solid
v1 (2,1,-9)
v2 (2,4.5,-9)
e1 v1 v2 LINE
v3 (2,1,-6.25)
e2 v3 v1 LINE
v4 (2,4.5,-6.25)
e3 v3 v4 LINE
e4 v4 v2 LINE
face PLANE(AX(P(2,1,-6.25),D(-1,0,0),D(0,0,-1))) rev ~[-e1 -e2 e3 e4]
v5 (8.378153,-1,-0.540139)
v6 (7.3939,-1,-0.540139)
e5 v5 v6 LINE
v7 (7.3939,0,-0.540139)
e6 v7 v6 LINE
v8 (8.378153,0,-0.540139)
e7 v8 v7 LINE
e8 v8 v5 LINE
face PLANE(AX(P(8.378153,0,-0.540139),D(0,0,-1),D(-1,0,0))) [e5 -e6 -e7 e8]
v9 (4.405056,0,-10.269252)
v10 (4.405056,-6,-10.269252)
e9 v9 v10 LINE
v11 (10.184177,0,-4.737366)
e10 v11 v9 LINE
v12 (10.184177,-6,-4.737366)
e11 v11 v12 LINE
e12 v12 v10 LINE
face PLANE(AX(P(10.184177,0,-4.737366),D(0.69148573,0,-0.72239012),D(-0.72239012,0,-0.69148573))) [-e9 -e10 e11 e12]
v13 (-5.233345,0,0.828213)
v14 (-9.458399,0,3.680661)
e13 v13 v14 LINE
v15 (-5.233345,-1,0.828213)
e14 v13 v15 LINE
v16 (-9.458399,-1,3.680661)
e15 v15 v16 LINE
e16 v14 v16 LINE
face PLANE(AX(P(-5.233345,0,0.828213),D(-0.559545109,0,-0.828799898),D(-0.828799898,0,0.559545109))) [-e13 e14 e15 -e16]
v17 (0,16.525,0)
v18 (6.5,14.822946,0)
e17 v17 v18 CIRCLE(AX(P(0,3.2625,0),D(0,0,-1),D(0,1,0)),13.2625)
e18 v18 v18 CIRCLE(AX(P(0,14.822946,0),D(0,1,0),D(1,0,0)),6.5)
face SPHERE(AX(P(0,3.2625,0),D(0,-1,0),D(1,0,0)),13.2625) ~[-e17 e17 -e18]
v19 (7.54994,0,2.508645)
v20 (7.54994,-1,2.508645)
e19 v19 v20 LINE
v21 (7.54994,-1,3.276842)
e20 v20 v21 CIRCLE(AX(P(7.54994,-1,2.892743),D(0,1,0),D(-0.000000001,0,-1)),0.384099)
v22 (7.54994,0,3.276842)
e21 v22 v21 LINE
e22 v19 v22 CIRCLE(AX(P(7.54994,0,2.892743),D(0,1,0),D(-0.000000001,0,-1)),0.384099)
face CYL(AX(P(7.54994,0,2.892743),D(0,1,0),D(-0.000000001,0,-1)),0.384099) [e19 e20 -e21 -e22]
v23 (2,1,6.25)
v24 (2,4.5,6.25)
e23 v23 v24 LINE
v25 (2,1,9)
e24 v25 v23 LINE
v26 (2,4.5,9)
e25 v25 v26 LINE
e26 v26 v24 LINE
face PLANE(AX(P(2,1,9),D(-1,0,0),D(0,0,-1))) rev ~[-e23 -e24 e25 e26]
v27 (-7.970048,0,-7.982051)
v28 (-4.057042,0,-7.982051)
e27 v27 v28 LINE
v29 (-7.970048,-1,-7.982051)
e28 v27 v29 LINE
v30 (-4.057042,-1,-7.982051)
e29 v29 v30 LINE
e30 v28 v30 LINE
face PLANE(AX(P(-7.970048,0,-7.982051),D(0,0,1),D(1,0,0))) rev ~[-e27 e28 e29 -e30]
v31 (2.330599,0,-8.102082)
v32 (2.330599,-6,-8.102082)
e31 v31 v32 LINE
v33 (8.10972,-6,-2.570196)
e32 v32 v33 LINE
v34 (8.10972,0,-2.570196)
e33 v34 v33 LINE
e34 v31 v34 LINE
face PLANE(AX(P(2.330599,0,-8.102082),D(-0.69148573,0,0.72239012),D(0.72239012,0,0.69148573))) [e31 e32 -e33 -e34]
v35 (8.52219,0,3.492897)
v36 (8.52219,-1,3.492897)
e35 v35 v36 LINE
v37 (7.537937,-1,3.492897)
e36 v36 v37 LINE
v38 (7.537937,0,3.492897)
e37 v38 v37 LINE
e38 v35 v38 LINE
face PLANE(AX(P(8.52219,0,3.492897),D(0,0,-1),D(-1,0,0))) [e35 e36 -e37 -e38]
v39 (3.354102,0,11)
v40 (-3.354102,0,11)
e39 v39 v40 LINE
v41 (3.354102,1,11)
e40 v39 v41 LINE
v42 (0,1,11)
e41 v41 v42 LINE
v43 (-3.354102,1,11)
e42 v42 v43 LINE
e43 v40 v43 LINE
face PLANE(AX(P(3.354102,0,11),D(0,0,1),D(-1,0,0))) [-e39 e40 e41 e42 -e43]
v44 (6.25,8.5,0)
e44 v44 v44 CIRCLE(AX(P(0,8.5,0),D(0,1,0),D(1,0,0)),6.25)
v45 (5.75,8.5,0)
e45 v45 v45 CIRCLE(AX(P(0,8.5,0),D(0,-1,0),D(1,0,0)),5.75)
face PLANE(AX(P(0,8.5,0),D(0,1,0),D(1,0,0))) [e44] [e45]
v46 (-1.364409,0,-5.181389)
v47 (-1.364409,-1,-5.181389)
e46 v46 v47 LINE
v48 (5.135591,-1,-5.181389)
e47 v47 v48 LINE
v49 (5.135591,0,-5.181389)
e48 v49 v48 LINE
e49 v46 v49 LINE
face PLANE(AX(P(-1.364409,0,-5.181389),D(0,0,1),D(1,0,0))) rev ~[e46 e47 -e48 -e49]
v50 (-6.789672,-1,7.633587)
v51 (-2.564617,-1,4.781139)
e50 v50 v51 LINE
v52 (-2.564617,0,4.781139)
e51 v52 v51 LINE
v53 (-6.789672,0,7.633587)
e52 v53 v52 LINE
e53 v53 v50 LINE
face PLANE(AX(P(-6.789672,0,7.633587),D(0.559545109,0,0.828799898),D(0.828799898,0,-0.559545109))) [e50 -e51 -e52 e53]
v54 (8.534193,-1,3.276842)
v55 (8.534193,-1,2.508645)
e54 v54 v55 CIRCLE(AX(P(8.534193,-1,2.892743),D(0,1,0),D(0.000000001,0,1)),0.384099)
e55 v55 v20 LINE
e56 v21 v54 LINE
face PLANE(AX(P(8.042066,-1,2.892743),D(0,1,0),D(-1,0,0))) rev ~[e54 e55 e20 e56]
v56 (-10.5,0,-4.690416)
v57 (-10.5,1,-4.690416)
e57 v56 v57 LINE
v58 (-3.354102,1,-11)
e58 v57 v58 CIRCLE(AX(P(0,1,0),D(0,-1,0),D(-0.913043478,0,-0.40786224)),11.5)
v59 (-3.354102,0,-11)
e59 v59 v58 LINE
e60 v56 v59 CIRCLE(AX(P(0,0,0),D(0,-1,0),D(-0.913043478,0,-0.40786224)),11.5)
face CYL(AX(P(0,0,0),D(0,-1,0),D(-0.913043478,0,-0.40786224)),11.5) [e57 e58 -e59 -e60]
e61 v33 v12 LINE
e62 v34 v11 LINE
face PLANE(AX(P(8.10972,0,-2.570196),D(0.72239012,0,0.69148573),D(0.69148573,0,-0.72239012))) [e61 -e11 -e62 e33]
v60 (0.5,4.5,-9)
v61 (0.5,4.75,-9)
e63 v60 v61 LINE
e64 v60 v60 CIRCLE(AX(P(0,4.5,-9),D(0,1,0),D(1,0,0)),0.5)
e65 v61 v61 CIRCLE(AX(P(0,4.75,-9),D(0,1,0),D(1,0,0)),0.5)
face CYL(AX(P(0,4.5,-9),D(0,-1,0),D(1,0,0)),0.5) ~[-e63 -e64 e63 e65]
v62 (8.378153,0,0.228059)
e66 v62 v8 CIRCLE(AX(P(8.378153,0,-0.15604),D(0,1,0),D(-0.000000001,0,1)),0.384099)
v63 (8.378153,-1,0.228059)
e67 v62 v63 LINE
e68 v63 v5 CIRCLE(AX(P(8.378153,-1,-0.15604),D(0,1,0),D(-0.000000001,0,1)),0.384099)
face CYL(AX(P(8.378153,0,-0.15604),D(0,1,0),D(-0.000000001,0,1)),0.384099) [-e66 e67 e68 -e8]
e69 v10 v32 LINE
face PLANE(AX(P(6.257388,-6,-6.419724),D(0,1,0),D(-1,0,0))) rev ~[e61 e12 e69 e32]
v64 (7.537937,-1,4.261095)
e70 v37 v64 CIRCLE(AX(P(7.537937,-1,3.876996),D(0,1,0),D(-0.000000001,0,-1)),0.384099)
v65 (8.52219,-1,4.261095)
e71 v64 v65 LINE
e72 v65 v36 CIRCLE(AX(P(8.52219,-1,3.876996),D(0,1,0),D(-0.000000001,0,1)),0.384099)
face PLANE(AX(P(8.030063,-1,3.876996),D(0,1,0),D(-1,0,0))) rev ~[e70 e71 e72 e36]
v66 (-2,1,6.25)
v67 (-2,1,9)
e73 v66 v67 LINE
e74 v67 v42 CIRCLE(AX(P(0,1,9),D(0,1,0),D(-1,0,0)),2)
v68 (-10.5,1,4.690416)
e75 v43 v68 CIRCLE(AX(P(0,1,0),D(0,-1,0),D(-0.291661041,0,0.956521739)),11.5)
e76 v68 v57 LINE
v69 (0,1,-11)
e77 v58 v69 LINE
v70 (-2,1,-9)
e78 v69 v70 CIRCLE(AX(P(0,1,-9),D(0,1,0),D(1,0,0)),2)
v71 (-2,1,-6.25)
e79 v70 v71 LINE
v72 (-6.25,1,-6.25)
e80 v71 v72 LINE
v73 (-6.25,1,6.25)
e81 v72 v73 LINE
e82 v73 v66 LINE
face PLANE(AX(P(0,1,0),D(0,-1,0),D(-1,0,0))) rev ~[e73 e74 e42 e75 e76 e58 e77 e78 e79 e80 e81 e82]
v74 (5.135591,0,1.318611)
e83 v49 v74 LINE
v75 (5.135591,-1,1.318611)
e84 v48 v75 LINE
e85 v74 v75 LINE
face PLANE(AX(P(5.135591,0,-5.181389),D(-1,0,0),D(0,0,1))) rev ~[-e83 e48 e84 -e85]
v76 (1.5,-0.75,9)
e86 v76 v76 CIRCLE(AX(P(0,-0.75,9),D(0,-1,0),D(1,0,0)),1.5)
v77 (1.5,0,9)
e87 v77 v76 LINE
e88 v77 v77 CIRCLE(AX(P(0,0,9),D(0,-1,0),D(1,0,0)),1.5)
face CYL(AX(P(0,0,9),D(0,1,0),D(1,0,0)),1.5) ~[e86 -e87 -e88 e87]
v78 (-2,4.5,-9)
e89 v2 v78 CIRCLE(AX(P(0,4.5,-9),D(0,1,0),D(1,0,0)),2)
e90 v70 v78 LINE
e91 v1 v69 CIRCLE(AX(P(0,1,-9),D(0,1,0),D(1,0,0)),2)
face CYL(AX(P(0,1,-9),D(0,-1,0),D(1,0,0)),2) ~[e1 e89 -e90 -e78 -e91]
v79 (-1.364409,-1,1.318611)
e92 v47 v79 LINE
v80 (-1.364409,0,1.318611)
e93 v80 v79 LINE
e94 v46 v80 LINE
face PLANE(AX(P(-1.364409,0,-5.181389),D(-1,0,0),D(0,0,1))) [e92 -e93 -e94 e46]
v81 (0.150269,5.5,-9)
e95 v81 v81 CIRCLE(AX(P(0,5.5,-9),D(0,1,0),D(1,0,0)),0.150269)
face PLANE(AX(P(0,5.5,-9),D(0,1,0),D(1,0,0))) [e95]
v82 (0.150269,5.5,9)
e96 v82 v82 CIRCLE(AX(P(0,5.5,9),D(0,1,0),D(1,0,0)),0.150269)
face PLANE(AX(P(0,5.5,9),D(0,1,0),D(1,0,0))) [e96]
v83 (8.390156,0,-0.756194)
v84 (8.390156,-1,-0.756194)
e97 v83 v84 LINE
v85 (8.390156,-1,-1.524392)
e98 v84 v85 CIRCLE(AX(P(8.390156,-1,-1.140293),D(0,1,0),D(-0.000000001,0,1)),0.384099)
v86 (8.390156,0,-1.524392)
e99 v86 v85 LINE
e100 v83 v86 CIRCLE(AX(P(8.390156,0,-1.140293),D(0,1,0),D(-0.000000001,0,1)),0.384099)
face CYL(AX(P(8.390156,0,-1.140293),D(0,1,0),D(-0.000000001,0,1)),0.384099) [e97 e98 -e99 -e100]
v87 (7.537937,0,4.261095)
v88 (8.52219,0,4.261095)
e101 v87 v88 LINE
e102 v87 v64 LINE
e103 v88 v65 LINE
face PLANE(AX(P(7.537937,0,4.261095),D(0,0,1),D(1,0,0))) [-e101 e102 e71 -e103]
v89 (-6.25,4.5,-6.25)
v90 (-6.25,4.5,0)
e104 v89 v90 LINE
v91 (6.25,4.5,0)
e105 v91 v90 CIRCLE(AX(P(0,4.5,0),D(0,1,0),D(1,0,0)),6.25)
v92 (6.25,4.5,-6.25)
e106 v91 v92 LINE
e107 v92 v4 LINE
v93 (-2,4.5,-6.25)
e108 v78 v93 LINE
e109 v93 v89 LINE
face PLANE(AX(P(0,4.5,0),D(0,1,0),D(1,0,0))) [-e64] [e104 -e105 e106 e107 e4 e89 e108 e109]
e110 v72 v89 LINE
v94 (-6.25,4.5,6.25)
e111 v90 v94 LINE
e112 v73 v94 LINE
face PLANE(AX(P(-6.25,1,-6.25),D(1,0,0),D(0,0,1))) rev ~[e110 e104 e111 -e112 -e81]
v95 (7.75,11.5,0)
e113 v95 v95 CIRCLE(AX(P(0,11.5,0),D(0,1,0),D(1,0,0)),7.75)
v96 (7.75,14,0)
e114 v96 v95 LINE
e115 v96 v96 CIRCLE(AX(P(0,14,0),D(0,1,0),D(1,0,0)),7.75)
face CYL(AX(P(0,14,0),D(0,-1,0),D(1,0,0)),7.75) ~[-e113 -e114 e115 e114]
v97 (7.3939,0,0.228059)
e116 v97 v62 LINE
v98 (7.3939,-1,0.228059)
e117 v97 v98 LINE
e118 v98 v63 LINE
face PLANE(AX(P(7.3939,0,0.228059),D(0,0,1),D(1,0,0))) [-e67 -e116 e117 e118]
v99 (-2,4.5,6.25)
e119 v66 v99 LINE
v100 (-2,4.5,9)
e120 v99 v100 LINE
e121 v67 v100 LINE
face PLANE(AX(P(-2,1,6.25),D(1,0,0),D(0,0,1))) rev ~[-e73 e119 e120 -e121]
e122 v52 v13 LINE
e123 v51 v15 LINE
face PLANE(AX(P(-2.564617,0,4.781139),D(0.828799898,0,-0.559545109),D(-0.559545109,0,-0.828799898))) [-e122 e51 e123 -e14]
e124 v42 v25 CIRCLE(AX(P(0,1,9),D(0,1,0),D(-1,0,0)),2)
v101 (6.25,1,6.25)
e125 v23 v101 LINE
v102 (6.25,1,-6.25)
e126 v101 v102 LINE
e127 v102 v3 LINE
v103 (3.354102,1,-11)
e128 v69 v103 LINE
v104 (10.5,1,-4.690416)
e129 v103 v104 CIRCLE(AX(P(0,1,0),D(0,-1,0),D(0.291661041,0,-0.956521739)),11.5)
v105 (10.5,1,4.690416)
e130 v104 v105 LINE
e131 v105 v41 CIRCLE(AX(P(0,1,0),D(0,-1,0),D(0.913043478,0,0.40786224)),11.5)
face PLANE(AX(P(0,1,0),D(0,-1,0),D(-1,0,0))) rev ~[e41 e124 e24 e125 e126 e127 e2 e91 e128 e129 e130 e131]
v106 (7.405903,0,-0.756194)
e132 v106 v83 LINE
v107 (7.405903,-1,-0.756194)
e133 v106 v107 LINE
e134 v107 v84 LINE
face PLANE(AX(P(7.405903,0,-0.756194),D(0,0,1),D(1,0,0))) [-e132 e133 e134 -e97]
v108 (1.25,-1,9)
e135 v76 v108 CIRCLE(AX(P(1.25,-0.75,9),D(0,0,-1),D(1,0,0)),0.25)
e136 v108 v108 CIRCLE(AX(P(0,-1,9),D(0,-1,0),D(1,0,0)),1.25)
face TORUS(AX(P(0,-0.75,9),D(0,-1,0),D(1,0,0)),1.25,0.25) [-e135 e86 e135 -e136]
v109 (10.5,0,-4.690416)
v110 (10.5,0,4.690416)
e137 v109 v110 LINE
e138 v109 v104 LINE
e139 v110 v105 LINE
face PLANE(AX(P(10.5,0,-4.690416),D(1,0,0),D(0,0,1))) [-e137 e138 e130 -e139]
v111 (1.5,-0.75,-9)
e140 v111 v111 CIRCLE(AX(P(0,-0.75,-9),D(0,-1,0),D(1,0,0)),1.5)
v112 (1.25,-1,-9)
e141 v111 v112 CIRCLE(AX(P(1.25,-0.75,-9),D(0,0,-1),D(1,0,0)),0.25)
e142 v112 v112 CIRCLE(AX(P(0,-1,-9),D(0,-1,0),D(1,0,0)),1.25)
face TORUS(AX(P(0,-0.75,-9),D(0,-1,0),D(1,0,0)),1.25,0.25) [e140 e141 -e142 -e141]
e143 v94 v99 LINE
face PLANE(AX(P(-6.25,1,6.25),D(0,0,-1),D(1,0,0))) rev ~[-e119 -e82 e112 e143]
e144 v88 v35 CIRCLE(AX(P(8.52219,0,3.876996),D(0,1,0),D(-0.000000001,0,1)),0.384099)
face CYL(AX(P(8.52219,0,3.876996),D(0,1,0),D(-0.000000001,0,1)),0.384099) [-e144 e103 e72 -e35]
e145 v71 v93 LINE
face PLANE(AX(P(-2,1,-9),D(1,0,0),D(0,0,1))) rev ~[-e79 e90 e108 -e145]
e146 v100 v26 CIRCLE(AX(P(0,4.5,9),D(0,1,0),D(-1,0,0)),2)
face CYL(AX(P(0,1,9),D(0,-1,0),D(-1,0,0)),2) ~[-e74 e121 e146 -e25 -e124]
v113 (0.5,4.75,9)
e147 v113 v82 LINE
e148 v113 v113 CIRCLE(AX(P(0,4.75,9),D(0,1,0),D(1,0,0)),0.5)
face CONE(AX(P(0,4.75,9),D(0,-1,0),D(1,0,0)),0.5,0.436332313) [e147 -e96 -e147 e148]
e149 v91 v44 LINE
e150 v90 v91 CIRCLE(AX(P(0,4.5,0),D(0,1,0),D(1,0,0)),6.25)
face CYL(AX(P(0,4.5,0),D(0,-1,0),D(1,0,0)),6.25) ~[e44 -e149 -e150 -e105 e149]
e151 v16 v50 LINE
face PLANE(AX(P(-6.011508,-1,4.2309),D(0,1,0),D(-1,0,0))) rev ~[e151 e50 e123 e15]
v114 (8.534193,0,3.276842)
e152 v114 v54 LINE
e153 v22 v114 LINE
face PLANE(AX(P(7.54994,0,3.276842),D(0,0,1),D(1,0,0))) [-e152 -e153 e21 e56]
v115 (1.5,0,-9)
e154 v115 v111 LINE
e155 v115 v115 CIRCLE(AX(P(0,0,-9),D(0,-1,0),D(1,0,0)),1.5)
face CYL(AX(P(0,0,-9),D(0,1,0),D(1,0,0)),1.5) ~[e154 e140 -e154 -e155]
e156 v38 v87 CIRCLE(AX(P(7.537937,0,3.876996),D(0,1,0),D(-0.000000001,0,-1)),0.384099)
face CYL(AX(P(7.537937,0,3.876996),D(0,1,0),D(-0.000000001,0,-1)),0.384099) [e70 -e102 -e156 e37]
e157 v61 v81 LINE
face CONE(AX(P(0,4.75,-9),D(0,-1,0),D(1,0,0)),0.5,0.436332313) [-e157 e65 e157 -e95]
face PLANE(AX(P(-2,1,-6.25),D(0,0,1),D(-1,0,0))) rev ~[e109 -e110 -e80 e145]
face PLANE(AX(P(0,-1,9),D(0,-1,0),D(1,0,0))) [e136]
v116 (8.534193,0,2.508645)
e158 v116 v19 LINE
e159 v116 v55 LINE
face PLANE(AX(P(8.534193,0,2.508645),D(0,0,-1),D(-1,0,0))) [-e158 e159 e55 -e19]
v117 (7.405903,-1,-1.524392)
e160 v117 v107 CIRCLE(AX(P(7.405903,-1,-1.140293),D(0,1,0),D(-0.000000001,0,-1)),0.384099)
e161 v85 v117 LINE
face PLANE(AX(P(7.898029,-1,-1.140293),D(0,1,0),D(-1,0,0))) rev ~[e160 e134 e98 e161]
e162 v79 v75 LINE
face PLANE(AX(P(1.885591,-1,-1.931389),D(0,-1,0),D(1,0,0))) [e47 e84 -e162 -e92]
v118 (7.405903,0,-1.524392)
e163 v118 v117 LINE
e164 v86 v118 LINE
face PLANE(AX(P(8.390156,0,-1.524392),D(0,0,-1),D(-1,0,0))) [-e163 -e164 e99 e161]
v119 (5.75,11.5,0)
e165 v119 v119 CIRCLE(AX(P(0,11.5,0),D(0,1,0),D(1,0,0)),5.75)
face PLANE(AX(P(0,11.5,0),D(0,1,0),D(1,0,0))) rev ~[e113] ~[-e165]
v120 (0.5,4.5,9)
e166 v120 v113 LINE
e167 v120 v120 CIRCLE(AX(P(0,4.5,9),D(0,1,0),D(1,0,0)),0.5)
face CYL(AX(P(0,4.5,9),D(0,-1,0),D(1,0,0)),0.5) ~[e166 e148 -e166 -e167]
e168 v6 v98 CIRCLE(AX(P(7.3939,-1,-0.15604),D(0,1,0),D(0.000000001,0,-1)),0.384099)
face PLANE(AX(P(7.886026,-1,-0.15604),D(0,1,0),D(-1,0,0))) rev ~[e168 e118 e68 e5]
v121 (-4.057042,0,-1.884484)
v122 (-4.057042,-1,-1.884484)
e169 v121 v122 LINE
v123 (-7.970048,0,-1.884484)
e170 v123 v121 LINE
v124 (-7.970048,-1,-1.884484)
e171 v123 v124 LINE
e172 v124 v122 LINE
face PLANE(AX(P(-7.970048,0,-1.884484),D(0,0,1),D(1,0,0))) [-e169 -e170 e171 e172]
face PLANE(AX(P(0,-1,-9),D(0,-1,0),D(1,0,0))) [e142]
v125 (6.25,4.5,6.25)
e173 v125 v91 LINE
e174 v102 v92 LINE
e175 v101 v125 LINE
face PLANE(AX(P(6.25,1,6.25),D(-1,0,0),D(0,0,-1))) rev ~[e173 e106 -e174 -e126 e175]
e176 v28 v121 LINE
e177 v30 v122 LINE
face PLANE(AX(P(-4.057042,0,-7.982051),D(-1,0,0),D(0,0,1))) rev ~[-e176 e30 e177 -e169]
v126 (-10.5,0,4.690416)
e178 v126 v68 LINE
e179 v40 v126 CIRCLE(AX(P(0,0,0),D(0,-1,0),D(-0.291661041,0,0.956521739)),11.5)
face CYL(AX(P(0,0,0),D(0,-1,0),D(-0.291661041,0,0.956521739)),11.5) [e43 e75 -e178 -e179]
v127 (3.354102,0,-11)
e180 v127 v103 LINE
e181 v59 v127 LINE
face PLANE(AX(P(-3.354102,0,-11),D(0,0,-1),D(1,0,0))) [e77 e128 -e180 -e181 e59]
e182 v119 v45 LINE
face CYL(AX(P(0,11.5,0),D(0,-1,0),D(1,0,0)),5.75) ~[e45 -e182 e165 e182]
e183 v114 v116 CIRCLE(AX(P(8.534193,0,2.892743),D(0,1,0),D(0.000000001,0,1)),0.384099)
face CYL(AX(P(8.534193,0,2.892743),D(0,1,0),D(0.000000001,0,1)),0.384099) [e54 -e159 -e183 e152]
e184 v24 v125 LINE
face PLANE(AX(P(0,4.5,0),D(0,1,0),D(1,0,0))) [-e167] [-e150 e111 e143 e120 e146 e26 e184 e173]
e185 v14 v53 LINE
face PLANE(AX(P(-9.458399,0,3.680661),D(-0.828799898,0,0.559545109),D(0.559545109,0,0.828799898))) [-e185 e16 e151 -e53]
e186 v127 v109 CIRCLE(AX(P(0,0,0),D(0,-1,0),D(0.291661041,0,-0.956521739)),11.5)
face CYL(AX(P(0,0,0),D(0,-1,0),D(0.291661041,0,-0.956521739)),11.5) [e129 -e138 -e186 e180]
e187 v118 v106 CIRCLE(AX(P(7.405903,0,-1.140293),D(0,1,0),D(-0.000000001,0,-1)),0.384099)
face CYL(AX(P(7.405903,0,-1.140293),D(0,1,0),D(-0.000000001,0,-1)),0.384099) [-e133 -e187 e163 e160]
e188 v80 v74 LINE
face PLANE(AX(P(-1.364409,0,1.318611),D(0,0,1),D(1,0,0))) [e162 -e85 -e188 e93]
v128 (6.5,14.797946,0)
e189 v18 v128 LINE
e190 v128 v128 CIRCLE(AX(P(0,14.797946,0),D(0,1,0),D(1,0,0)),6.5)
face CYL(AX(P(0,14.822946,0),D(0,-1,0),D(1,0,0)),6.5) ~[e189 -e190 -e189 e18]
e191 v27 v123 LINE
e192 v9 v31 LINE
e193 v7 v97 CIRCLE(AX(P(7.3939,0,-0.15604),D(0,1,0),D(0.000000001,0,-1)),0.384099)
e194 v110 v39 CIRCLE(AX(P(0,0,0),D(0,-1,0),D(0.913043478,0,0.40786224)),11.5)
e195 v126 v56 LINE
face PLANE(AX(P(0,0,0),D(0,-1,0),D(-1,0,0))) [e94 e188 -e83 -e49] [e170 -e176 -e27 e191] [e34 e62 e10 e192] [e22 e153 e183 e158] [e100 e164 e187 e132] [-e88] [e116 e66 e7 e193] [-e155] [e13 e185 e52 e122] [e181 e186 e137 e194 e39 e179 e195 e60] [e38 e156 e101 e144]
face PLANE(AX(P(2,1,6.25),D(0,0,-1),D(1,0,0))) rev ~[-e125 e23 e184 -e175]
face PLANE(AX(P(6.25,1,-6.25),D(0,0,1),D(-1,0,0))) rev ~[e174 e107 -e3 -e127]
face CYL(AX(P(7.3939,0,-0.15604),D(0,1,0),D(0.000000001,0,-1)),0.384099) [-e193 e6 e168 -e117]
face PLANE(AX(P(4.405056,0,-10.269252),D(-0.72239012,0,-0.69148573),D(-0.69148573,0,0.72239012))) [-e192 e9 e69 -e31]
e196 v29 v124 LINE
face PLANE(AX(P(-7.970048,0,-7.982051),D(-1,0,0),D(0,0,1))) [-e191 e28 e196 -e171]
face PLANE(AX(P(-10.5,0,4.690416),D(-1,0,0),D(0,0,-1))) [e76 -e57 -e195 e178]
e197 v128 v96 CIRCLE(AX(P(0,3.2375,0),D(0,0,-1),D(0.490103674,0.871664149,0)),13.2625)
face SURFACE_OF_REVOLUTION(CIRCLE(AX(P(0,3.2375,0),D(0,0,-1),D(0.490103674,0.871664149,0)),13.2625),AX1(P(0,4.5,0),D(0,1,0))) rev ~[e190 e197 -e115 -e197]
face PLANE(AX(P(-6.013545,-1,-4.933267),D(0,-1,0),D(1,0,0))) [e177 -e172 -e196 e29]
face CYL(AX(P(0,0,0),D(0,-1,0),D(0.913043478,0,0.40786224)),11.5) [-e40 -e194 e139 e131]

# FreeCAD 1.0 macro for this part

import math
import FreeCAD as App
import Part
import Sketcher


def edges_at(feature, points):
    """Names of the edges that pass closest to the given points."""
    edges = feature.Shape.Edges
    near = lambda p: min(range(len(edges)), key=lambda i: edges[i].distToShape(Part.Vertex(*p))[0])
    return sorted({f"Edge{near(p) + 1}" for p in points})

doc = App.newDocument("Part")
params = doc.addObject("Spreadsheet::Sheet", "Params")
for row, (alias, value) in enumerate([
    ("sketch1_radius", "11.5 mm"),
    ("pad1_length", "1 mm"),
    ("sketch2_length", "3 mm"),
    ("sketch2_length2", "8 mm"),
    ("pad2_length", "6 mm"),
    ("sketch3_diameter", "3 mm"),
    ("sketch3_width", "6.5 mm"),
    ("pad3_length", "1 mm"),
    ("fillet_radius", "0.25 mm"),
    ("sketch4_radius", "2 mm"),
    ("sketch4_height", "12.5 mm"),
    ("sketch4_width", "4.25 mm"),
    ("pad4_length", "3.5 mm"),
    ("sketch5_diameter", "12.5 mm"),
    ("pad5_length", "4 mm"),
    ("sketch6_diameter", "1 mm"),
    ("pad6_length", "1 mm"),
    ("chamfer_size", "0.75 mm"),
    ("chamfer_size2", "0.349731 mm"),
    ("chamfer2_size", "0.75 mm"),
    ("chamfer2_size2", "0.349731 mm"),
    ("sketch7_width", "2 mm"),
    ("sketch7_height", "7 mm"),
    ("sketch7_height2", "2.5 mm"),
    ("sketch7_width2", "5.75 mm"),
    ("revolution_angle", "360 deg"),
], start=1):
    params.set(f"A{row}", alias)
    params.set(f"B{row}", "=" + value)
    params.setAlias(f"B{row}", alias)

body = doc.addObject("PartDesign::Body", "Body")

sketch1 = body.newObject("Sketcher::SketchObject", "Sketch")
sketch1.AttachmentSupport = (doc.getObject("XZ_Plane"), [""])
sketch1.MapMode = "FlatFace"
sketch1.addGeometry(Part.LineSegment(App.Vector(3, -11, 0), App.Vector(-3, -11, 0)), False)
sketch1.addGeometry(Part.ArcOfCircle(Part.Circle(App.Vector(0, 0, 0), App.Vector(0, 0, 1), 12), math.radians(-156), math.radians(-107)), False)
sketch1.addGeometry(Part.LineSegment(App.Vector(-10, -5, 0), App.Vector(-10, 5, 0)), False)
sketch1.addGeometry(Part.ArcOfCircle(Part.Circle(App.Vector(0, 0, 0), App.Vector(0, 0, 1), 12), math.radians(107), math.radians(156)), False)
sketch1.addGeometry(Part.LineSegment(App.Vector(-3, 11, 0), App.Vector(3, 11, 0)), False)
sketch1.addGeometry(Part.ArcOfCircle(Part.Circle(App.Vector(0, 0, 0), App.Vector(0, 0, 1), 12), math.radians(24), math.radians(73)), False)
sketch1.addGeometry(Part.LineSegment(App.Vector(10, 5, 0), App.Vector(10, -5, 0)), False)
sketch1.addGeometry(Part.ArcOfCircle(Part.Circle(App.Vector(0, 0, 0), App.Vector(0, 0, 1), 12), math.radians(-73), math.radians(-24)), False)
sketch1.addConstraint(Sketcher.Constraint("Coincident", 0, 2, 1, 2))
sketch1.addConstraint(Sketcher.Constraint("Coincident", 1, 1, 2, 1))
sketch1.addConstraint(Sketcher.Constraint("Coincident", 2, 2, 3, 2))
sketch1.addConstraint(Sketcher.Constraint("Coincident", 3, 1, 4, 1))
sketch1.addConstraint(Sketcher.Constraint("Coincident", 4, 2, 5, 2))
sketch1.addConstraint(Sketcher.Constraint("Coincident", 5, 1, 6, 1))
sketch1.addConstraint(Sketcher.Constraint("Coincident", 6, 2, 7, 2))
sketch1.addConstraint(Sketcher.Constraint("Coincident", 7, 1, 0, 1))
sketch1.addConstraint(Sketcher.Constraint("Horizontal", 0))
sketch1.addConstraint(Sketcher.Constraint("Vertical", 2))
sketch1.addConstraint(Sketcher.Constraint("Horizontal", 4))
sketch1.addConstraint(Sketcher.Constraint("Vertical", 6))
sketch1.addConstraint(Sketcher.Constraint("Coincident", 1, 3, -1, 1))
sketch1.addConstraint(Sketcher.Constraint("Coincident", 3, 3, -1, 1))
sketch1.addConstraint(Sketcher.Constraint("Coincident", 5, 3, -1, 1))
sketch1.addConstraint(Sketcher.Constraint("Coincident", 7, 3, -1, 1))
sketch1.addConstraint(Sketcher.Constraint("Equal", 1, 3))
sketch1.addConstraint(Sketcher.Constraint("Equal", 3, 5))
sketch1.addConstraint(Sketcher.Constraint("Equal", 5, 7))
sketch1.addConstraint(Sketcher.Constraint("Horizontal", 2, 2, 5, 1))
sketch1.addConstraint(Sketcher.Constraint("Vertical", 0, 2, 3, 1))
sketch1.addConstraint(Sketcher.Constraint("Radius", 1, 11.5))
sketch1.addConstraint(Sketcher.Constraint("DistanceY", 0, 2, -1, 1, 11.0))
sketch1.addConstraint(Sketcher.Constraint("DistanceX", 1, 1, -1, 1, 10.5))
sketch1.setExpression("Constraints[21]", "Params.sketch1_radius")
pad1 = body.newObject("PartDesign::Pad", "Pad")
pad1.Profile = sketch1
pad1.setExpression("Length", "Params.pad1_length")
pad1.Reversed = True

sketch2 = body.newObject("Sketcher::SketchObject", "Sketch001")
sketch2.AttachmentSupport = (doc.getObject("XZ_Plane"), [""])
sketch2.MapMode = "FlatFace"
sketch2.addGeometry(Part.LineSegment(App.Vector(10.2, -4.7, 0), App.Vector(8.1, -2.6, 0)), False)
sketch2.addGeometry(Part.LineSegment(App.Vector(8.1, -2.6, 0), App.Vector(2.3, -8.1, 0)), False)
sketch2.addGeometry(Part.LineSegment(App.Vector(2.3, -8.1, 0), App.Vector(4.4, -10.3, 0)), False)
sketch2.addGeometry(Part.LineSegment(App.Vector(4.4, -10.3, 0), App.Vector(10.2, -4.7, 0)), False)
sketch2.addConstraint(Sketcher.Constraint("Coincident", 0, 2, 1, 1))
sketch2.addConstraint(Sketcher.Constraint("Coincident", 1, 2, 2, 1))
sketch2.addConstraint(Sketcher.Constraint("Coincident", 2, 2, 3, 1))
sketch2.addConstraint(Sketcher.Constraint("Coincident", 3, 2, 0, 1))
sketch2.addConstraint(Sketcher.Constraint("Perpendicular", 0, 1))
sketch2.addConstraint(Sketcher.Constraint("Perpendicular", 1, 2))
sketch2.addConstraint(Sketcher.Constraint("Perpendicular", 2, 3))
sketch2.addConstraint(Sketcher.Constraint("Distance", 0, 3.0))
sketch2.addConstraint(Sketcher.Constraint("Distance", 1, 8.0))
sketch2.addConstraint(Sketcher.Constraint("DistanceX", -1, 1, 1, 2, 2.330599))
sketch2.addConstraint(Sketcher.Constraint("DistanceX", -1, 1, 0, 2, 8.10972))
sketch2.addConstraint(Sketcher.Constraint("DistanceY", 1, 2, -1, 1, 8.102082))
sketch2.setExpression("Constraints[7]", "Params.sketch2_length")
sketch2.setExpression("Constraints[8]", "Params.sketch2_length2")
pad2 = body.newObject("PartDesign::Pad", "Pad001")
pad2.Profile = sketch2
pad2.setExpression("Length", "Params.pad2_length")

sketch3 = body.newObject("Sketcher::SketchObject", "Sketch002")
sketch3.AttachmentSupport = (doc.getObject("XZ_Plane"), [""])
sketch3.MapMode = "FlatFace"
sketch3.addGeometry(Part.Circle(App.Vector(0, -9, 0), App.Vector(0, 0, 1), 1.5), False)
sketch3.addGeometry(Part.Circle(App.Vector(0, 9, 0), App.Vector(0, 0, 1), 1.5), False)
sketch3.addGeometry(Part.LineSegment(App.Vector(-1.36, 1.32, 0), App.Vector(-1.36, -5.18, 0)), False)
sketch3.addGeometry(Part.LineSegment(App.Vector(-1.36, -5.18, 0), App.Vector(5.14, -5.18, 0)), False)
sketch3.addGeometry(Part.LineSegment(App.Vector(5.14, -5.18, 0), App.Vector(5.14, 1.32, 0)), False)
sketch3.addGeometry(Part.LineSegment(App.Vector(5.14, 1.32, 0), App.Vector(-1.36, 1.32, 0)), False)
sketch3.addGeometry(Part.LineSegment(App.Vector(-2.56, 4.78, 0), App.Vector(-6.79, 7.63, 0)), False)
sketch3.addGeometry(Part.LineSegment(App.Vector(-6.79, 7.63, 0), App.Vector(-9.46, 3.68, 0)), False)
sketch3.addGeometry(Part.LineSegment(App.Vector(-9.46, 3.68, 0), App.Vector(-5.23, 0.83, 0)), False)
sketch3.addGeometry(Part.LineSegment(App.Vector(-5.23, 0.83, 0), App.Vector(-2.56, 4.78, 0)), False)
sketch3.addGeometry(Part.LineSegment(App.Vector(-7.97, -1.88, 0), App.Vector(-7.97, -7.98, 0)), False)
sketch3.addGeometry(Part.LineSegment(App.Vector(-7.97, -7.98, 0), App.Vector(-4.06, -7.98, 0)), False)
sketch3.addGeometry(Part.LineSegment(App.Vector(-4.06, -7.98, 0), App.Vector(-4.06, -1.88, 0)), False)
sketch3.addGeometry(Part.LineSegment(App.Vector(-4.06, -1.88, 0), App.Vector(-7.97, -1.88, 0)), False)
sketch3.addGeometry(Part.LineSegment(App.Vector(8.52, 4.26, 0), App.Vector(7.54, 4.26, 0)), False)
sketch3.addGeometry(Part.ArcOfCircle(Part.Circle(App.Vector(7.54, 3.88, 0), App.Vector(0, 0, 1), 0.38), math.radians(90), math.radians(270)), False)
sketch3.addGeometry(Part.LineSegment(App.Vector(7.54, 3.49, 0), App.Vector(8.52, 3.49, 0)), False)
sketch3.addGeometry(Part.ArcOfCircle(Part.Circle(App.Vector(8.52, 3.88, 0), App.Vector(0, 0, 1), 0.38), math.radians(-90), math.radians(90)), False)
sketch3.addGeometry(Part.LineSegment(App.Vector(8.53, 3.28, 0), App.Vector(7.55, 3.28, 0)), False)
sketch3.addGeometry(Part.ArcOfCircle(Part.Circle(App.Vector(7.55, 2.89, 0), App.Vector(0, 0, 1), 0.38), math.radians(90), math.radians(270)), False)
sketch3.addGeometry(Part.LineSegment(App.Vector(7.55, 2.51, 0), App.Vector(8.53, 2.51, 0)), False)
sketch3.addGeometry(Part.ArcOfCircle(Part.Circle(App.Vector(8.53, 2.89, 0), App.Vector(0, 0, 1), 0.38), math.radians(-90), math.radians(90)), False)
sketch3.addGeometry(Part.LineSegment(App.Vector(8.38, 0.23, 0), App.Vector(7.39, 0.23, 0)), False)
sketch3.addGeometry(Part.ArcOfCircle(Part.Circle(App.Vector(7.39, -0.16, 0), App.Vector(0, 0, 1), 0.38), math.radians(90), math.radians(270)), False)
sketch3.addGeometry(Part.LineSegment(App.Vector(7.39, -0.54, 0), App.Vector(8.38, -0.54, 0)), False)
sketch3.addGeometry(Part.ArcOfCircle(Part.Circle(App.Vector(8.38, -0.16, 0), App.Vector(0, 0, 1), 0.38), math.radians(-90), math.radians(90)), False)
sketch3.addGeometry(Part.LineSegment(App.Vector(8.39, -0.76, 0), App.Vector(7.41, -0.76, 0)), False)
sketch3.addGeometry(Part.ArcOfCircle(Part.Circle(App.Vector(7.41, -1.14, 0), App.Vector(0, 0, 1), 0.38), math.radians(90), math.radians(270)), False)
sketch3.addGeometry(Part.LineSegment(App.Vector(7.41, -1.52, 0), App.Vector(8.39, -1.52, 0)), False)
sketch3.addGeometry(Part.ArcOfCircle(Part.Circle(App.Vector(8.39, -1.14, 0), App.Vector(0, 0, 1), 0.38), math.radians(-90), math.radians(90)), False)
sketch3.addConstraint(Sketcher.Constraint("Coincident", 2, 2, 3, 1))
sketch3.addConstraint(Sketcher.Constraint("Coincident", 3, 2, 4, 1))
sketch3.addConstraint(Sketcher.Constraint("Coincident", 4, 2, 5, 1))
sketch3.addConstraint(Sketcher.Constraint("Coincident", 5, 2, 2, 1))
sketch3.addConstraint(Sketcher.Constraint("Coincident", 6, 2, 7, 1))
sketch3.addConstraint(Sketcher.Constraint("Coincident", 7, 2, 8, 1))
sketch3.addConstraint(Sketcher.Constraint("Coincident", 8, 2, 9, 1))
sketch3.addConstraint(Sketcher.Constraint("Coincident", 9, 2, 6, 1))
sketch3.addConstraint(Sketcher.Constraint("Coincident", 10, 2, 11, 1))
sketch3.addConstraint(Sketcher.Constraint("Coincident", 11, 2, 12, 1))
sketch3.addConstraint(Sketcher.Constraint("Coincident", 12, 2, 13, 1))
sketch3.addConstraint(Sketcher.Constraint("Coincident", 13, 2, 10, 1))
sketch3.addConstraint(Sketcher.Constraint("Tangent", 14, 2, 15, 1))
sketch3.addConstraint(Sketcher.Constraint("Tangent", 15, 2, 16, 1))
sketch3.addConstraint(Sketcher.Constraint("Tangent", 16, 2, 17, 1))
sketch3.addConstraint(Sketcher.Constraint("Tangent", 17, 2, 14, 1))
sketch3.addConstraint(Sketcher.Constraint("Tangent", 18, 2, 19, 1))
sketch3.addConstraint(Sketcher.Constraint("Tangent", 19, 2, 20, 1))
sketch3.addConstraint(Sketcher.Constraint("Tangent", 20, 2, 21, 1))
sketch3.addConstraint(Sketcher.Constraint("Tangent", 21, 2, 18, 1))
sketch3.addConstraint(Sketcher.Constraint("Tangent", 22, 2, 23, 1))
sketch3.addConstraint(Sketcher.Constraint("Tangent", 23, 2, 24, 1))
sketch3.addConstraint(Sketcher.Constraint("Tangent", 24, 2, 25, 1))
sketch3.addConstraint(Sketcher.Constraint("Tangent", 25, 2, 22, 1))
sketch3.addConstraint(Sketcher.Constraint("Tangent", 26, 2, 27, 1))
sketch3.addConstraint(Sketcher.Constraint("Tangent", 27, 2, 28, 1))
sketch3.addConstraint(Sketcher.Constraint("Tangent", 28, 2, 29, 1))
sketch3.addConstraint(Sketcher.Constraint("Tangent", 29, 2, 26, 1))
sketch3.addConstraint(Sketcher.Constraint("Vertical", 2))
sketch3.addConstraint(Sketcher.Constraint("Horizontal", 3))
sketch3.addConstraint(Sketcher.Constraint("Vertical", 4))
sketch3.addConstraint(Sketcher.Constraint("Horizontal", 5))
sketch3.addConstraint(Sketcher.Constraint("Vertical", 10))
sketch3.addConstraint(Sketcher.Constraint("Horizontal", 11))
sketch3.addConstraint(Sketcher.Constraint("Vertical", 12))
sketch3.addConstraint(Sketcher.Constraint("Horizontal", 13))
sketch3.addConstraint(Sketcher.Constraint("Horizontal", 14))
sketch3.addConstraint(Sketcher.Constraint("Horizontal", 16))
sketch3.addConstraint(Sketcher.Constraint("Horizontal", 18))
sketch3.addConstraint(Sketcher.Constraint("Horizontal", 20))
sketch3.addConstraint(Sketcher.Constraint("Horizontal", 22))
sketch3.addConstraint(Sketcher.Constraint("Horizontal", 24))
sketch3.addConstraint(Sketcher.Constraint("Horizontal", 26))
sketch3.addConstraint(Sketcher.Constraint("Horizontal", 28))
sketch3.addConstraint(Sketcher.Constraint("Equal", 0, 1))
sketch3.addConstraint(Sketcher.Constraint("Equal", 17, 19))
sketch3.addConstraint(Sketcher.Constraint("Equal", 21, 23))
sketch3.addConstraint(Sketcher.Constraint("Equal", 25, 27))
sketch3.addConstraint(Sketcher.Constraint("Symmetric", 0, 3, 1, 3, -1, 1))
sketch3.addConstraint(Sketcher.Constraint("PointOnObject", 0, 3, -2))
sketch3.addConstraint(Sketcher.Constraint("Perpendicular", 6, 7))
sketch3.addConstraint(Sketcher.Constraint("Perpendicular", 7, 8))
sketch3.addConstraint(Sketcher.Constraint("Perpendicular", 8, 9))
sketch3.addConstraint(Sketcher.Constraint("Equal", 16, 18))
sketch3.addConstraint(Sketcher.Constraint("Equal", 20, 22))
sketch3.addConstraint(Sketcher.Constraint("Equal", 24, 26))
sketch3.addConstraint(Sketcher.Constraint("Equal", 5, 2))
sketch3.addConstraint(Sketcher.Constraint("Diameter", 0, 3.0))
sketch3.addConstraint(Sketcher.Constraint("DistanceX", 3, 1, 3, 2, 6.5))
sketch3.addConstraint(Sketcher.Constraint("DistanceY", 0, 3, -1, 1, 9.0))
sketch3.addConstraint(Sketcher.Constraint("Radius", 15, 0.384099))
sketch3.addConstraint(Sketcher.Constraint("Distance", 6, 5.097798))
sketch3.addConstraint(Sketcher.Constraint("DistanceX", -1, 1, 23, 3, 7.3939))
sketch3.addConstraint(Sketcher.Constraint("DistanceX", 7, 2, -1, 1, 9.458399))
sketch3.addConstraint(Sketcher.Constraint("DistanceY", 8, 2, 5, 2, 0.490398))
sketch3.addConstraint(Sketcher.Constraint("Distance", 7, 4.769458))
sketch3.addConstraint(Sketcher.Constraint("DistanceX", 11, 1, 11, 2, 3.913005))
sketch3.addConstraint(Sketcher.Constraint("DistanceX", 14, 2, 14, 1, 0.984253))
sketch3.addConstraint(Sketcher.Constraint("DistanceY", 10, 2, 10, 1, 6.097567))
sketch3.addConstraint(Sketcher.Constraint("DistanceX", -1, 1, 17, 3, 8.52219))
sketch3.addConstraint(Sketcher.Constraint("DistanceX", -1, 1, 19, 3, 7.54994))
sketch3.addConstraint(Sketcher.Constraint("DistanceY", 23, 3, -1, 1, 0.15604))
sketch3.addConstraint(Sketcher.Constraint("DistanceX", 2, 2, -1, 1, 1.364409))
sketch3.addConstraint(Sketcher.Constraint("DistanceY", 2, 2, -1, 1, 5.181389))
sketch3.addConstraint(Sketcher.Constraint("DistanceX", 6, 2, -1, 1, 6.789672))
sketch3.addConstraint(Sketcher.Constraint("DistanceY", 10, 2, -1, 1, 7.982051))
sketch3.addConstraint(Sketcher.Constraint("DistanceY", -1, 1, 18, 2, 3.276842))
sketch3.addConstraint(Sketcher.Constraint("DistanceY", 27, 2, -1, 1, 1.524392))
sketch3.addConstraint(Sketcher.Constraint("DistanceX", 27, 3, 25, 3, 0.97225))
sketch3.addConstraint(Sketcher.Constraint("DistanceY", 27, 3, 15, 3, 5.017289))
sketch3.addConstraint(Sketcher.Constraint("DistanceX", 10, 2, 2, 2, 6.605639))
sketch3.setExpression("Constraints[57]", "Params.sketch3_diameter")
sketch3.setExpression("Constraints[58]", "Params.sketch3_width")
pad3 = body.newObject("PartDesign::Pad", "Pad002")
pad3.Profile = sketch3
pad3.setExpression("Length", "Params.pad3_length")
doc.recompute()

fillet = body.newObject("PartDesign::Fillet", "Fillet")
fillet.Base = (pad3, edges_at(pad3, [(-1.5, -1, -9), (-1.5, -1, 9)]))
fillet.setExpression("Radius", "Params.fillet_radius")

sketch4 = body.newObject("Sketcher::SketchObject", "Sketch003")
sketch4.AttachmentSupport = (doc.getObject("XZ_Plane"), [""])
sketch4.MapMode = "FlatFace"
sketch4.AttachmentOffset = App.Placement(App.Vector(0, 0, -1), App.Rotation())
sketch4.addGeometry(Part.LineSegment(App.Vector(-2, 6.2, 0), App.Vector(-2, 9, 0)), False)
sketch4.addGeometry(Part.ArcOfCircle(Part.Circle(App.Vector(0, 9, 0), App.Vector(0, 0, 1), 2), math.radians(0), math.radians(180)), False)
sketch4.addGeometry(Part.LineSegment(App.Vector(2, 9, 0), App.Vector(2, 6.2, 0)), False)
sketch4.addGeometry(Part.LineSegment(App.Vector(2, 6.2, 0), App.Vector(6.2, 6.2, 0)), False)
sketch4.addGeometry(Part.LineSegment(App.Vector(6.2, 6.2, 0), App.Vector(6.2, -6.2, 0)), False)
sketch4.addGeometry(Part.LineSegment(App.Vector(6.2, -6.2, 0), App.Vector(2, -6.2, 0)), False)
sketch4.addGeometry(Part.LineSegment(App.Vector(2, -6.2, 0), App.Vector(2, -9, 0)), False)
sketch4.addGeometry(Part.ArcOfCircle(Part.Circle(App.Vector(0, -9, 0), App.Vector(0, 0, 1), 2), math.radians(180), math.radians(360)), False)
sketch4.addGeometry(Part.LineSegment(App.Vector(-2, -9, 0), App.Vector(-2, -6.2, 0)), False)
sketch4.addGeometry(Part.LineSegment(App.Vector(-2, -6.2, 0), App.Vector(-6.2, -6.2, 0)), False)
sketch4.addGeometry(Part.LineSegment(App.Vector(-6.2, -6.2, 0), App.Vector(-6.2, 6.2, 0)), False)
sketch4.addGeometry(Part.LineSegment(App.Vector(-6.2, 6.2, 0), App.Vector(-2, 6.2, 0)), False)
sketch4.addConstraint(Sketcher.Constraint("Tangent", 0, 2, 1, 2))
sketch4.addConstraint(Sketcher.Constraint("Tangent", 1, 1, 2, 1))
sketch4.addConstraint(Sketcher.Constraint("Coincident", 2, 2, 3, 1))
sketch4.addConstraint(Sketcher.Constraint("Coincident", 3, 2, 4, 1))
sketch4.addConstraint(Sketcher.Constraint("Coincident", 4, 2, 5, 1))
sketch4.addConstraint(Sketcher.Constraint("Coincident", 5, 2, 6, 1))
sketch4.addConstraint(Sketcher.Constraint("Tangent", 6, 2, 7, 2))
sketch4.addConstraint(Sketcher.Constraint("Tangent", 7, 1, 8, 1))
sketch4.addConstraint(Sketcher.Constraint("Coincident", 8, 2, 9, 1))
sketch4.addConstraint(Sketcher.Constraint("Coincident", 9, 2, 10, 1))
sketch4.addConstraint(Sketcher.Constraint("Coincident", 10, 2, 11, 1))
sketch4.addConstraint(Sketcher.Constraint("Coincident", 11, 2, 0, 1))
sketch4.addConstraint(Sketcher.Constraint("Vertical", 0))
sketch4.addConstraint(Sketcher.Constraint("Vertical", 2))
sketch4.addConstraint(Sketcher.Constraint("Horizontal", 3))
sketch4.addConstraint(Sketcher.Constraint("Vertical", 4))
sketch4.addConstraint(Sketcher.Constraint("Horizontal", 5))
sketch4.addConstraint(Sketcher.Constraint("Vertical", 6))
sketch4.addConstraint(Sketcher.Constraint("Vertical", 8))
sketch4.addConstraint(Sketcher.Constraint("Horizontal", 9))
sketch4.addConstraint(Sketcher.Constraint("Vertical", 10))
sketch4.addConstraint(Sketcher.Constraint("Horizontal", 11))
sketch4.addConstraint(Sketcher.Constraint("Equal", 1, 7))
sketch4.addConstraint(Sketcher.Constraint("Symmetric", 1, 3, 7, 3, -1, 1))
sketch4.addConstraint(Sketcher.Constraint("Symmetric", 3, 2, 9, 2, -1, 1))
sketch4.addConstraint(Sketcher.Constraint("Symmetric", 5, 2, 8, 2, -2))
sketch4.addConstraint(Sketcher.Constraint("Horizontal", 3, 2, 10, 2))
sketch4.addConstraint(Sketcher.Constraint("Radius", 1, 2.0))
sketch4.addConstraint(Sketcher.Constraint("DistanceY", 4, 2, 4, 1, 12.5))
sketch4.addConstraint(Sketcher.Constraint("DistanceY", -1, 1, 1, 3, 9.0))
sketch4.addConstraint(Sketcher.Constraint("DistanceX", 3, 1, 3, 2, 4.25))
sketch4.setExpression("Constraints[27]", "Params.sketch4_radius")
sketch4.setExpression("Constraints[28]", "Params.sketch4_height")
sketch4.setExpression("Constraints[30]", "Params.sketch4_width")
pad4 = body.newObject("PartDesign::Pad", "Pad003")
pad4.Profile = sketch4
pad4.setExpression("Length", "Params.pad4_length")
pad4.Reversed = True

sketch5 = body.newObject("Sketcher::SketchObject", "Sketch004")
sketch5.AttachmentSupport = (doc.getObject("XZ_Plane"), [""])
sketch5.MapMode = "FlatFace"
sketch5.AttachmentOffset = App.Placement(App.Vector(0, 0, -4.5), App.Rotation())
sketch5.addGeometry(Part.Circle(App.Vector(0, 0, 0), App.Vector(0, 0, 1), 6), False)
sketch5.addConstraint(Sketcher.Constraint("Coincident", 0, 3, -1, 1))
sketch5.addConstraint(Sketcher.Constraint("Diameter", 0, 12.5))
sketch5.setExpression("Constraints[1]", "Params.sketch5_diameter")
pad5 = body.newObject("PartDesign::Pad", "Pad004")
pad5.Profile = sketch5
pad5.setExpression("Length", "Params.pad5_length")
pad5.Reversed = True

sketch6 = body.newObject("Sketcher::SketchObject", "Sketch005")
sketch6.AttachmentSupport = (doc.getObject("XZ_Plane"), [""])
sketch6.MapMode = "FlatFace"
sketch6.AttachmentOffset = App.Placement(App.Vector(0, 0, -4.5), App.Rotation())
sketch6.addGeometry(Part.Circle(App.Vector(0, -9, 0), App.Vector(0, 0, 1), 0.5), False)
sketch6.addGeometry(Part.Circle(App.Vector(0, 9, 0), App.Vector(0, 0, 1), 0.5), False)
sketch6.addConstraint(Sketcher.Constraint("Equal", 0, 1))
sketch6.addConstraint(Sketcher.Constraint("Symmetric", 0, 3, 1, 3, -1, 1))
sketch6.addConstraint(Sketcher.Constraint("PointOnObject", 0, 3, -2))
sketch6.addConstraint(Sketcher.Constraint("Diameter", 0, 1.0))
sketch6.addConstraint(Sketcher.Constraint("DistanceY", 0, 3, -1, 1, 9.0))
sketch6.setExpression("Constraints[3]", "Params.sketch6_diameter")
pad6 = body.newObject("PartDesign::Pad", "Pad005")
pad6.Profile = sketch6
pad6.setExpression("Length", "Params.pad6_length")
pad6.Reversed = True
doc.recompute()

chamfer = body.newObject("PartDesign::Chamfer", "Chamfer")
chamfer.Base = (pad6, edges_at(pad6, [(-0.5, 5.5, -9)]))
chamfer.ChamferType = "Two distances"
chamfer.setExpression("Size", "Params.chamfer_size")
chamfer.setExpression("Size2", "Params.chamfer_size2")
doc.recompute()

chamfer2 = body.newObject("PartDesign::Chamfer", "Chamfer001")
chamfer2.Base = (chamfer, edges_at(chamfer, [(-0.5, 5.5, 9)]))
chamfer2.ChamferType = "Two distances"
chamfer2.setExpression("Size", "Params.chamfer2_size")
chamfer2.setExpression("Size2", "Params.chamfer2_size2")

sketch7 = body.newObject("Sketcher::SketchObject", "Sketch006")
sketch7.AttachmentSupport = (doc.getObject("XY_Plane"), [""])
sketch7.MapMode = "FlatFace"
sketch7.addGeometry(Part.LineSegment(App.Vector(0, 16.525, 0), App.Vector(0, 4.5, 0)), False)
sketch7.addGeometry(Part.LineSegment(App.Vector(0, 4.5, 0), App.Vector(5.75, 4.5, 0)), False)
sketch7.addGeometry(Part.LineSegment(App.Vector(5.75, 4.5, 0), App.Vector(5.75, 11.5, 0)), False)
sketch7.addGeometry(Part.LineSegment(App.Vector(5.75, 11.5, 0), App.Vector(7.75, 11.5, 0)), False)
sketch7.addGeometry(Part.LineSegment(App.Vector(7.75, 11.5, 0), App.Vector(7.75, 14, 0)), False)
sketch7.addGeometry(Part.ArcOfCircle(Part.Circle(App.Vector(0, 3.238, 0), App.Vector(0, 0, 1), 13.262), math.radians(54.24), math.radians(60.65)), False)
sketch7.addGeometry(Part.LineSegment(App.Vector(6.5, 14.798, 0), App.Vector(6.5, 14.823, 0)), False)
sketch7.addGeometry(Part.ArcOfCircle(Part.Circle(App.Vector(0, 3.263, 0), App.Vector(0, 0, 1), 13.262), math.radians(61), math.radians(90)), False)
sketch7.addConstraint(Sketcher.Constraint("Coincident", 0, 2, 1, 1))
sketch7.addConstraint(Sketcher.Constraint("Coincident", 1, 2, 2, 1))
sketch7.addConstraint(Sketcher.Constraint("Coincident", 2, 2, 3, 1))
sketch7.addConstraint(Sketcher.Constraint("Coincident", 3, 2, 4, 1))
sketch7.addConstraint(Sketcher.Constraint("Coincident", 4, 2, 5, 1))
sketch7.addConstraint(Sketcher.Constraint("Coincident", 5, 2, 6, 1))
sketch7.addConstraint(Sketcher.Constraint("Coincident", 6, 2, 7, 1))
sketch7.addConstraint(Sketcher.Constraint("Coincident", 7, 2, 0, 1))
sketch7.addConstraint(Sketcher.Constraint("Vertical", 0))
sketch7.addConstraint(Sketcher.Constraint("Horizontal", 1))
sketch7.addConstraint(Sketcher.Constraint("Vertical", 2))
sketch7.addConstraint(Sketcher.Constraint("Horizontal", 3))
sketch7.addConstraint(Sketcher.Constraint("Vertical", 4))
sketch7.addConstraint(Sketcher.Constraint("Vertical", 6))
sketch7.addConstraint(Sketcher.Constraint("Equal", 5, 7))
sketch7.addConstraint(Sketcher.Constraint("PointOnObject", 5, 3, -2))
sketch7.addConstraint(Sketcher.Constraint("PointOnObject", 7, 3, -2))
sketch7.addConstraint(Sketcher.Constraint("PointOnObject", 0, 2, -2))
sketch7.addConstraint(Sketcher.Constraint("DistanceX", 3, 1, 3, 2, 2.0))
sketch7.addConstraint(Sketcher.Constraint("DistanceY", 2, 1, 2, 2, 7.0))
sketch7.addConstraint(Sketcher.Constraint("DistanceY", 4, 1, 4, 2, 2.5))
sketch7.addConstraint(Sketcher.Constraint("DistanceY", -1, 1, 4, 2, 14.0))
sketch7.addConstraint(Sketcher.Constraint("DistanceX", 1, 1, 1, 2, 5.75))
sketch7.addConstraint(Sketcher.Constraint("DistanceX", -1, 1, 5, 2, 6.5))
sketch7.addConstraint(Sketcher.Constraint("Radius", 5, 13.2625))
sketch7.addConstraint(Sketcher.Constraint("DistanceY", 0, 2, 0, 1, 12.025))
sketch7.setExpression("Constraints[18]", "Params.sketch7_width")
sketch7.setExpression("Constraints[19]", "Params.sketch7_height")
sketch7.setExpression("Constraints[20]", "Params.sketch7_height2")
sketch7.setExpression("Constraints[22]", "Params.sketch7_width2")
revolution = body.newObject("PartDesign::Revolution", "Revolution")
revolution.Profile = sketch7
revolution.ReferenceAxis = (sketch7, ["V_Axis"])
revolution.setExpression("Angle", "Params.revolution_angle")

doc.recompute()
